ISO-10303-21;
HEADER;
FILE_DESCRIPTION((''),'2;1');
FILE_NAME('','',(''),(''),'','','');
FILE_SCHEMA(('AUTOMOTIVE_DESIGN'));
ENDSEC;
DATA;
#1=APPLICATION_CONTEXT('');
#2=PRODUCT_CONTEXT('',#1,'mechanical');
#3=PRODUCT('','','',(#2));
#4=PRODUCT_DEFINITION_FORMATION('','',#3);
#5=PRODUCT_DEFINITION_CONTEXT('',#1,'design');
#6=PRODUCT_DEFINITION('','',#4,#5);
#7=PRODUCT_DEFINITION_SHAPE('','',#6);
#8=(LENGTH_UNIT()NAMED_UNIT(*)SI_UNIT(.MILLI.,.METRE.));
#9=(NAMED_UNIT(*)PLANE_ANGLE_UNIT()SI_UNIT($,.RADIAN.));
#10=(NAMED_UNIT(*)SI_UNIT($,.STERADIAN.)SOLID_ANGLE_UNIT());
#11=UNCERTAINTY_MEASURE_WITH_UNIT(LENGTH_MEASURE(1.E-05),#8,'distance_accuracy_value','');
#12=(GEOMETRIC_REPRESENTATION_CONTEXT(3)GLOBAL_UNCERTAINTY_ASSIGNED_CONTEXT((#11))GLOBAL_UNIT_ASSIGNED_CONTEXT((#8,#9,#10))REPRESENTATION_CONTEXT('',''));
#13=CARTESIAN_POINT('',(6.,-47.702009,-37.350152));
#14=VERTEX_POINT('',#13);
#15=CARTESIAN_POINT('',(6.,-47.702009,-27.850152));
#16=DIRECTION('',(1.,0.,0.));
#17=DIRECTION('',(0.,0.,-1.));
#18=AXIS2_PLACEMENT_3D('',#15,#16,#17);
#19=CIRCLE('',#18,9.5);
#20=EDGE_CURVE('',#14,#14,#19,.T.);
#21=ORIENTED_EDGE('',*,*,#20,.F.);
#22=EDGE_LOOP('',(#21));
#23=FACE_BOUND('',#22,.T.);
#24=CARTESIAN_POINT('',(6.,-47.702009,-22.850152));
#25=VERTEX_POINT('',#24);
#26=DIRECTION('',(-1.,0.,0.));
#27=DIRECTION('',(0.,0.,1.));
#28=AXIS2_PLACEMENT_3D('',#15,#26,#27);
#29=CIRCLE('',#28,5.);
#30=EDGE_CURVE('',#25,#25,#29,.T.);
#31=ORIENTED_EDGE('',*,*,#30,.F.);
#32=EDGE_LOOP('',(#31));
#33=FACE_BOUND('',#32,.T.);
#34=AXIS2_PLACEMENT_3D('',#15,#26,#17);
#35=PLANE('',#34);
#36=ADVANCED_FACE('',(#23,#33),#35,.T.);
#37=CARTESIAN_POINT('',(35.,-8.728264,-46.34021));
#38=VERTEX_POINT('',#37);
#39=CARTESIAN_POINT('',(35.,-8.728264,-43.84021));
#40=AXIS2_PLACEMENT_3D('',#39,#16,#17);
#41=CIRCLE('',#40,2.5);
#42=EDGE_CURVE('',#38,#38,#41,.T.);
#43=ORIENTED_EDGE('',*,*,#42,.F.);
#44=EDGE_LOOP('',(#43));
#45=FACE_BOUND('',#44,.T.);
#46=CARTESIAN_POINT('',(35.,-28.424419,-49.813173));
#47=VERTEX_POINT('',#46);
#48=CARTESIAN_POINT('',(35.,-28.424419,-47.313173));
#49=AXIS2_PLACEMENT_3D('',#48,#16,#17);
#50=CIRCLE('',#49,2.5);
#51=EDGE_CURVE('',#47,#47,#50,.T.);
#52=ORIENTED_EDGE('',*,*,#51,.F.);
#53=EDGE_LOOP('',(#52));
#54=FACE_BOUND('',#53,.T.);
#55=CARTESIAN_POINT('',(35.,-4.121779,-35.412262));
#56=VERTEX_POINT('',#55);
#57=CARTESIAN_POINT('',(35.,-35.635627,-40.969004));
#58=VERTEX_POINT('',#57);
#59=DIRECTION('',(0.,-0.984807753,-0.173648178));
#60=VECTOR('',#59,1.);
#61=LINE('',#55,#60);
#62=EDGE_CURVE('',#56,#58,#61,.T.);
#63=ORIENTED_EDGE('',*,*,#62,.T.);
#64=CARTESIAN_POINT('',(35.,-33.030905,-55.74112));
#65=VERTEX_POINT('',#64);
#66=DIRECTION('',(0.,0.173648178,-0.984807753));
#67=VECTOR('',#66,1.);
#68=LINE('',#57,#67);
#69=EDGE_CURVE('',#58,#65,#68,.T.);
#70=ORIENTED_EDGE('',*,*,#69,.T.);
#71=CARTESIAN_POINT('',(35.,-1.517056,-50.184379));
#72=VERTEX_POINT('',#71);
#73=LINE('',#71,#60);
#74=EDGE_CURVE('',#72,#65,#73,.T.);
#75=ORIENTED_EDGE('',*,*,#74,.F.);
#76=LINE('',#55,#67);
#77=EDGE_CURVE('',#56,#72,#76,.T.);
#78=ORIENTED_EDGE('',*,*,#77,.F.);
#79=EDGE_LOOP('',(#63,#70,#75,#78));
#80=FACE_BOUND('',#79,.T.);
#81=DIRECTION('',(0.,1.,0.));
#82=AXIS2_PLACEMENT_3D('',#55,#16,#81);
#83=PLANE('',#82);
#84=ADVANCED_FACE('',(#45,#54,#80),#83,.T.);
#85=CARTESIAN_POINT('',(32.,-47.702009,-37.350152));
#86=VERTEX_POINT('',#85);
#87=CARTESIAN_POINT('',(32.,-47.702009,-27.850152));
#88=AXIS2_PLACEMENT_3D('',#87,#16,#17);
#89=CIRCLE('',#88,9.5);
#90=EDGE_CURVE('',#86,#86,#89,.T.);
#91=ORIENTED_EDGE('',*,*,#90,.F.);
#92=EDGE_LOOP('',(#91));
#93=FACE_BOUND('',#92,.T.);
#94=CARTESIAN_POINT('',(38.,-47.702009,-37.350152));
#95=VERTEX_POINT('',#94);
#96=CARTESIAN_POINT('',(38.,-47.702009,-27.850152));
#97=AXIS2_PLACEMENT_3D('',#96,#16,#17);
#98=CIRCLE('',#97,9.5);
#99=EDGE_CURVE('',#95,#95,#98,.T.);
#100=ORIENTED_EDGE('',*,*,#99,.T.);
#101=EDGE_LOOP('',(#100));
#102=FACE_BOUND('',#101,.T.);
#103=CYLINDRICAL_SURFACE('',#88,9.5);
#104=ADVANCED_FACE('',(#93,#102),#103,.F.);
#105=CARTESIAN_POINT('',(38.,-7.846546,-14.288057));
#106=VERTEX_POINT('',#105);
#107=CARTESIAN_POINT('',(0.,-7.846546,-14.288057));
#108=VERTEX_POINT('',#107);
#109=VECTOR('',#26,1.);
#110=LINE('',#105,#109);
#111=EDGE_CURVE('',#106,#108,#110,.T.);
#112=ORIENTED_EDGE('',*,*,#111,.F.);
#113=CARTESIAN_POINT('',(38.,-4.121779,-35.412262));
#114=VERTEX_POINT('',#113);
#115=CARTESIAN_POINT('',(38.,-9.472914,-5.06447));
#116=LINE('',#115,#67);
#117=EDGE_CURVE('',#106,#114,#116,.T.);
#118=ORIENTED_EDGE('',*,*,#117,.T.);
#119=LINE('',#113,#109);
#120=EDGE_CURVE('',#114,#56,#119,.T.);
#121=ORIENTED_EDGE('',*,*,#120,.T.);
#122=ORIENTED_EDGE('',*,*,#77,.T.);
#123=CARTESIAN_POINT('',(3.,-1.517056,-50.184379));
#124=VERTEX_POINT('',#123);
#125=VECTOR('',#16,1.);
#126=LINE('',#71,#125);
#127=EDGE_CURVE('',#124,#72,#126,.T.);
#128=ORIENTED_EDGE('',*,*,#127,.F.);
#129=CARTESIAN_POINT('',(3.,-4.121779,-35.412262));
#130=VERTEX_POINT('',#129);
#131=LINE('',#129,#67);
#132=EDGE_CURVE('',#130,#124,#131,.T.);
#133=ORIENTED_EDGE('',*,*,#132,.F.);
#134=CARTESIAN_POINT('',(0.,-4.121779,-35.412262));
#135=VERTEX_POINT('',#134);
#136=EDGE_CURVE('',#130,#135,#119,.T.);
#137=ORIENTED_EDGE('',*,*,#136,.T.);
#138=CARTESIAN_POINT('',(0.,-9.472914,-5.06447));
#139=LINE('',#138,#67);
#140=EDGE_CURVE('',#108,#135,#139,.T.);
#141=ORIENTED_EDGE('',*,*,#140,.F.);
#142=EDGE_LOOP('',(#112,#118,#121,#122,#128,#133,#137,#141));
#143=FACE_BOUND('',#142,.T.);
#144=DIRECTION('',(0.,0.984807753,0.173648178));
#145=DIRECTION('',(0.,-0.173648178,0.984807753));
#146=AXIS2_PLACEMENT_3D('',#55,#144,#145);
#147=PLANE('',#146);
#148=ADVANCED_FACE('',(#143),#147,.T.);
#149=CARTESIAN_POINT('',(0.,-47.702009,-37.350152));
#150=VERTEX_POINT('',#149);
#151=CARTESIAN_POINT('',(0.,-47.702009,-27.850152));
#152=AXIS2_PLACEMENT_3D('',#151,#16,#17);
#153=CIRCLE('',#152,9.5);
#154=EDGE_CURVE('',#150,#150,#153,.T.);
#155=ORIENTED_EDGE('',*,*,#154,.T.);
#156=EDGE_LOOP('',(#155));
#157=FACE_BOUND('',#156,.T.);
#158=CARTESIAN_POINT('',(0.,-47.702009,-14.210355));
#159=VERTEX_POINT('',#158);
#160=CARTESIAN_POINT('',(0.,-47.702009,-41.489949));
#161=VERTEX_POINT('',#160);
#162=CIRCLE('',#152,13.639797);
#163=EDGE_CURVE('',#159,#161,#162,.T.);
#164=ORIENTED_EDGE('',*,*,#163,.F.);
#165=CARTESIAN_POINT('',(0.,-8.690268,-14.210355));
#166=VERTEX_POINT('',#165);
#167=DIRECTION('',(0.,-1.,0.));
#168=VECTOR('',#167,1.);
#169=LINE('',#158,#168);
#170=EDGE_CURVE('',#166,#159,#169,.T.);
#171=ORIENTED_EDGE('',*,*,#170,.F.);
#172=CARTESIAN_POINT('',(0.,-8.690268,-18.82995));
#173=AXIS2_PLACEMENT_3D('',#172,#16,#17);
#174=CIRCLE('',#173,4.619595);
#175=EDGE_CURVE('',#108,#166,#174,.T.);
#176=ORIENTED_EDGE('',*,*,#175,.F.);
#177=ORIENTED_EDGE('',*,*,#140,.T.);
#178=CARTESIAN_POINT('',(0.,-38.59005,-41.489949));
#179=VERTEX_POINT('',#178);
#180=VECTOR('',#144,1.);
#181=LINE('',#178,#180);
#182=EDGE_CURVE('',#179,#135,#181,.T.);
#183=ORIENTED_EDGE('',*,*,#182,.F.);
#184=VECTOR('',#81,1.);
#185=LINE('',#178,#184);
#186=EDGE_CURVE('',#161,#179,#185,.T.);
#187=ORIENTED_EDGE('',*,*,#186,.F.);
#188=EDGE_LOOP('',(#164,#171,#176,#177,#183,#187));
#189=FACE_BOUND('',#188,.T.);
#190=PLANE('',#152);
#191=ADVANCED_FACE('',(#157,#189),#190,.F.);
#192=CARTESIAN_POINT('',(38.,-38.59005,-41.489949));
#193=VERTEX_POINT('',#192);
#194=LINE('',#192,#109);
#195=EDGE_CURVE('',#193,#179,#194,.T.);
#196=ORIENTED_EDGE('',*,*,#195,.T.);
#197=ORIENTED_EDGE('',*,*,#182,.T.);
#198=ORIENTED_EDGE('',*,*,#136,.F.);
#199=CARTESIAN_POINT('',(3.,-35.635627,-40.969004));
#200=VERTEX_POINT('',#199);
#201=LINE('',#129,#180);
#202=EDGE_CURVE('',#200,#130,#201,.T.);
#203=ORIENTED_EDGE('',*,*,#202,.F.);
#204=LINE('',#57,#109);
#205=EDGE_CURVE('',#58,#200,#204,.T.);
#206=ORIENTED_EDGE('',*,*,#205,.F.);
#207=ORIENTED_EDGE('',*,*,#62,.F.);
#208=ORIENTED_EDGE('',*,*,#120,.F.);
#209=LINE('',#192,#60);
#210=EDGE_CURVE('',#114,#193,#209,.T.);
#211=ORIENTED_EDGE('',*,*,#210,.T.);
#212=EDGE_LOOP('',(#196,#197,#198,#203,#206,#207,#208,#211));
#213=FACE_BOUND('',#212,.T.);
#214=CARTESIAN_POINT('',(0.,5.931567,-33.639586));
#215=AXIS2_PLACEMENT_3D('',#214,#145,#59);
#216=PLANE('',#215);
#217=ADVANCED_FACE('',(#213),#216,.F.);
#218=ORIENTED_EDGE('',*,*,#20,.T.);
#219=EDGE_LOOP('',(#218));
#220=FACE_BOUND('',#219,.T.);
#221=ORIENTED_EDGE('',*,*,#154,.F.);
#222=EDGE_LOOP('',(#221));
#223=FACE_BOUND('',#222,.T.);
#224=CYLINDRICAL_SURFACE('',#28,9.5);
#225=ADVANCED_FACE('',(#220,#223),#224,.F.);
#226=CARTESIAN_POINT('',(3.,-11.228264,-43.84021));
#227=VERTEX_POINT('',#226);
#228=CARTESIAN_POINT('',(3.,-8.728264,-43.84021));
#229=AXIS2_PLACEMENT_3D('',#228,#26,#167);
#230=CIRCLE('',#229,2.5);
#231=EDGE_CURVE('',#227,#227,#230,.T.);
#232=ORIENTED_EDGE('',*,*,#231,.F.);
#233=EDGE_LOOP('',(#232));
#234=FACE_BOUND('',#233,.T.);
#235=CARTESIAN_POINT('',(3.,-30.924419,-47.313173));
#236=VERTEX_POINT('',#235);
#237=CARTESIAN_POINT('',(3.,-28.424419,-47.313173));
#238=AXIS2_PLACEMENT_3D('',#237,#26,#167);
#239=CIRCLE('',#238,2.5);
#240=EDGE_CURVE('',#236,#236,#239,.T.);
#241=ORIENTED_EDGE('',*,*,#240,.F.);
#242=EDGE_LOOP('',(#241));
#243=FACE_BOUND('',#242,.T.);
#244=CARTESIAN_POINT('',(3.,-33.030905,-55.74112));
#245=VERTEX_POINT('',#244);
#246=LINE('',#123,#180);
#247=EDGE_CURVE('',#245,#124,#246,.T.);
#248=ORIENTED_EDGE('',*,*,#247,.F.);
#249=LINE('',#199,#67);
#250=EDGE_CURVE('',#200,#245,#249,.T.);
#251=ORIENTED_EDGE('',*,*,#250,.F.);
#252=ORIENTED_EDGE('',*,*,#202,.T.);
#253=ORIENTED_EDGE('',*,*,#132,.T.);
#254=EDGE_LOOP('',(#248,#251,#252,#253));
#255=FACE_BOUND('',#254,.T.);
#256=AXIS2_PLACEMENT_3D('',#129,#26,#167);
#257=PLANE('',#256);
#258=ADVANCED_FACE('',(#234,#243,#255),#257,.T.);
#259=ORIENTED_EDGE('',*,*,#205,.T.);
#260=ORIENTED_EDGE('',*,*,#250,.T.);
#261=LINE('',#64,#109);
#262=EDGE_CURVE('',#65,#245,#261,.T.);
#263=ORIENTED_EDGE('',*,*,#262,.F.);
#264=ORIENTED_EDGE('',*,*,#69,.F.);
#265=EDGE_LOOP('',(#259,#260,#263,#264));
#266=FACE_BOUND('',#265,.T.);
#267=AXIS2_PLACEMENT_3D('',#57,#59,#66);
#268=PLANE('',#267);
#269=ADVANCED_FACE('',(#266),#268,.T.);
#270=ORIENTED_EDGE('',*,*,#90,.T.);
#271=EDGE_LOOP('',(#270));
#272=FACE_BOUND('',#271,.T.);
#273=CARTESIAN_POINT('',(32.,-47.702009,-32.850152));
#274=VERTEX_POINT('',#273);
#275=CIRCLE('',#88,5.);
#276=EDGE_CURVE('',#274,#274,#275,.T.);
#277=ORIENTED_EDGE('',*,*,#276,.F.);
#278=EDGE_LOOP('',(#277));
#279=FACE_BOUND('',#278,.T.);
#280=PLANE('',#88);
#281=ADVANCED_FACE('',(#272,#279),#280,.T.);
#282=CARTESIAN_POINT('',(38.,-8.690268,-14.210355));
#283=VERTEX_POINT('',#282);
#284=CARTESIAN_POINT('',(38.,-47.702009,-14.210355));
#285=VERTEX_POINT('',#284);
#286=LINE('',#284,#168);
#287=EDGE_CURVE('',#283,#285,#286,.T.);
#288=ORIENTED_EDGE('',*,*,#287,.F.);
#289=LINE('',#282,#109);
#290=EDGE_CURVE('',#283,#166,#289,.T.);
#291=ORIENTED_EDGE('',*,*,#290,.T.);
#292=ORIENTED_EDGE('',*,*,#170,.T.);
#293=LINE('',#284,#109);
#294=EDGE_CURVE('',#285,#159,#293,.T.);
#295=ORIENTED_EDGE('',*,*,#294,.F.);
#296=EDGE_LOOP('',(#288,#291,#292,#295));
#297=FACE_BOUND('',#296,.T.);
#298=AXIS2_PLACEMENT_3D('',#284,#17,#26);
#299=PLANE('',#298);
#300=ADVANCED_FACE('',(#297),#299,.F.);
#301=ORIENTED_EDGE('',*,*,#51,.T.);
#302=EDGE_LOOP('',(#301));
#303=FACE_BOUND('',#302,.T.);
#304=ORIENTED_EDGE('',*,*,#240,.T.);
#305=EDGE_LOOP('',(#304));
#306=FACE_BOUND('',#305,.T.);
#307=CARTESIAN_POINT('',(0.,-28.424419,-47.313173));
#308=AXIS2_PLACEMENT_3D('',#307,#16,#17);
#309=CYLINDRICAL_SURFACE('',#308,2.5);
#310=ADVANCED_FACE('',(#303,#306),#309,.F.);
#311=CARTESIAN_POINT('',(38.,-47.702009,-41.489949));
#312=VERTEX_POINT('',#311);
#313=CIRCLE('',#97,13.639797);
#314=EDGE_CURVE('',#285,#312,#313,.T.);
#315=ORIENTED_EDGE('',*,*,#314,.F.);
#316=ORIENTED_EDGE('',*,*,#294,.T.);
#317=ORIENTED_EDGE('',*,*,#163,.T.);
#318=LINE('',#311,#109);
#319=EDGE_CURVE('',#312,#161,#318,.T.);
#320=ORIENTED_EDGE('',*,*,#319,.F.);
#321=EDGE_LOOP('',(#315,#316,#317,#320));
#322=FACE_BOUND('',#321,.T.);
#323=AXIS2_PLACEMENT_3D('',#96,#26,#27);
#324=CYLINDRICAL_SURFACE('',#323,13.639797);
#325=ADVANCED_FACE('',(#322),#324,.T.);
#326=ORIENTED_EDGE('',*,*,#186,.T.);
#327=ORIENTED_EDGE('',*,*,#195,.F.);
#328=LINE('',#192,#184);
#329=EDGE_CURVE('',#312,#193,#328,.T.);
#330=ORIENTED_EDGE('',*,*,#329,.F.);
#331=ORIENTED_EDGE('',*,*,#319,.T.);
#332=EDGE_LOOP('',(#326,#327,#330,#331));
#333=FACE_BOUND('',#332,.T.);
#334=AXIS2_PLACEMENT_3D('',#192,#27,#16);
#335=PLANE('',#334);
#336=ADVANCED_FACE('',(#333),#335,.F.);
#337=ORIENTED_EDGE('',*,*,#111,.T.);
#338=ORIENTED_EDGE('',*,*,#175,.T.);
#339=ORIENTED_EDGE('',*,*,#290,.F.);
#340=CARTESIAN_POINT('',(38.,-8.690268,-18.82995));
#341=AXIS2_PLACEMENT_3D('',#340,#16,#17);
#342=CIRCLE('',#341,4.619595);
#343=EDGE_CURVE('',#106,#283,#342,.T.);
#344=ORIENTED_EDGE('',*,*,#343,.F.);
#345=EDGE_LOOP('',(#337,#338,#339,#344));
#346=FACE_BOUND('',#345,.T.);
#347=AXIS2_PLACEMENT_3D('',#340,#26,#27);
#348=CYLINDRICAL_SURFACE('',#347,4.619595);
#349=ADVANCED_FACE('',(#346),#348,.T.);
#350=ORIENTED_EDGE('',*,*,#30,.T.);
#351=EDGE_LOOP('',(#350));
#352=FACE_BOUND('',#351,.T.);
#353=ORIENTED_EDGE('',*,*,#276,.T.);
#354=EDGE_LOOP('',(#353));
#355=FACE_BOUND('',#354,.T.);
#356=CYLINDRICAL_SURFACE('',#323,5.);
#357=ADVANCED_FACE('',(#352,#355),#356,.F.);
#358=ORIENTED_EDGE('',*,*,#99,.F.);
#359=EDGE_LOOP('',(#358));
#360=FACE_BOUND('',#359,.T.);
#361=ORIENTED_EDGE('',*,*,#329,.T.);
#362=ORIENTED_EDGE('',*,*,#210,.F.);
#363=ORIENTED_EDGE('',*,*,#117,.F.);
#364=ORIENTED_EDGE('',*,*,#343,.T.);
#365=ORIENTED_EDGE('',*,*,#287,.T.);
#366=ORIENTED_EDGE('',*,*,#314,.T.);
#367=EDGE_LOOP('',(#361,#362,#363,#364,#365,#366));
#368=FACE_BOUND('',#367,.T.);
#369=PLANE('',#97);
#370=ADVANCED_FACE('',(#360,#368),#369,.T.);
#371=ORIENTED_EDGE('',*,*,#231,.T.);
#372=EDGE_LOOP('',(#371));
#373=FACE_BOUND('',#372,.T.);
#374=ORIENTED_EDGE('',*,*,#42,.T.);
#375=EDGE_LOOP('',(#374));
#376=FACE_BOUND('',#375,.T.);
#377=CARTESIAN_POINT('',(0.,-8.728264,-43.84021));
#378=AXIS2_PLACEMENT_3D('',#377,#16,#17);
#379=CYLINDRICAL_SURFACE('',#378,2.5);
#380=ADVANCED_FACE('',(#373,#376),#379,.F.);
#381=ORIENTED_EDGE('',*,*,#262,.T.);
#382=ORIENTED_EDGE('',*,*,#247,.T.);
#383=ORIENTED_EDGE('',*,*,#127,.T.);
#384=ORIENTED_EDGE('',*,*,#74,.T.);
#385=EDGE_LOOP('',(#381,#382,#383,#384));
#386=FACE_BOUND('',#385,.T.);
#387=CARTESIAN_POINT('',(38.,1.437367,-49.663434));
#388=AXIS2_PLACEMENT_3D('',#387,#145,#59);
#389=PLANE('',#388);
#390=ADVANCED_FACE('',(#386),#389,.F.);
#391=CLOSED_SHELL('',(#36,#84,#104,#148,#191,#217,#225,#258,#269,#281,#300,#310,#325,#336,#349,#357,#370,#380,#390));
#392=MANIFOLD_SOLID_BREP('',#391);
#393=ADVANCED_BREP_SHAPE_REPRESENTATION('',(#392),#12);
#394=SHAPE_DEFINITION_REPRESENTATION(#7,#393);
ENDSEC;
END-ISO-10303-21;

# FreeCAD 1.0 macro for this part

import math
import FreeCAD as App
import Part
import Sketcher
from FreeCAD import Vector
Q = App.Units.Quantity

doc = App.newDocument("Part")
body = doc.addObject("PartDesign::Body", "Body")

sketch1 = body.newObject("Sketcher::SketchObject", "Sketch")
sketch1.AttachmentSupport = (doc.getObject("YZ_Plane"), [""])
sketch1.MapMode = "FlatFace"
sketch1.addGeometry([
    Part.LineSegment(Vector(1.4, -49.7, 0), Vector(-4.1, -18, 0)),
    Part.ArcOfCircle(Part.Circle(Vector(-8.7, -18.8, 0), Vector(0, 0, 1), 4.6), math.radians(10), math.radians(90)),
    Part.LineSegment(Vector(-8.7, -14.2, 0), Vector(-47.7, -14.2, 0)),
    Part.ArcOfCircle(Part.Circle(Vector(-47.7, -27.9, 0), Vector(0, 0, 1), 13.6), math.radians(90), math.radians(270)),
    Part.LineSegment(Vector(-47.7, -41.5, 0), Vector(-38.6, -41.5, 0)),
    Part.LineSegment(Vector(-38.6, -41.5, 0), Vector(-36, -56.3, 0)),
    Part.LineSegment(Vector(-36, -56.3, 0), Vector(1.4, -49.7, 0)),
    Part.Circle(Vector(-47.7, -27.9, 0), Vector(0, 0, 1), 5),
], False)
sketch1.addConstraint([
    Sketcher.Constraint("Tangent", 0, 2, 1, 1),
    Sketcher.Constraint("Tangent", 1, 2, 2, 1),
    Sketcher.Constraint("Tangent", 2, 2, 3, 1),
    Sketcher.Constraint("Tangent", 3, 2, 4, 1),
    Sketcher.Constraint("Coincident", 4, 2, 5, 1),
    Sketcher.Constraint("Coincident", 5, 2, 6, 1),
    Sketcher.Constraint("Coincident", 6, 2, 0, 1),
    Sketcher.Constraint("Horizontal", 2),
    Sketcher.Constraint("Horizontal", 4),
    Sketcher.Constraint("Coincident", 7, 3, 3, 3),
    Sketcher.Constraint("Parallel", 0, 5),
    Sketcher.Constraint("Perpendicular", 5, 6),
    Sketcher.Constraint("Diameter", 7, Q("10 mm")),
    Sketcher.Constraint("Angle", 0, Q("100 deg")),
    Sketcher.Constraint("Distance", 5, Q("15 mm")),
    Sketcher.Constraint("Distance", 6, Q("38 mm")),
    Sketcher.Constraint("DistanceY", 3, 2, 1, 3, Q("22.659999 mm")),
    Sketcher.Constraint("Radius", 1, Q("4.619595 mm")),
    Sketcher.Constraint("DistanceX", 2, 2, 2, 1, Q("39.011741 mm")),
    Sketcher.Constraint("DistanceY", 1, 3, -1, 1, Q("18.82995 mm")),
    Sketcher.Constraint("DistanceX", 3, 3, -1, 1, Q("47.702009 mm")),
])
pad1 = body.newObject("PartDesign::Pad", "Pad")
pad1.Profile = sketch1
pad1.Length = 38

sketch2 = body.newObject("Sketcher::SketchObject", "Sketch001")
sketch2.AttachmentSupport = (doc.getObject("YZ_Plane"), [""])
sketch2.MapMode = "FlatFace"
sketch2.AttachmentOffset = App.Placement(Vector(0, 0, 38), App.Rotation())
sketch2.addGeometry(Part.Circle(Vector(-48, -28, 0), Vector(0, 0, 1), 10), False)
sketch2.addConstraint([
    Sketcher.Constraint("Diameter", 0, Q("19 mm")),
    Sketcher.Constraint("DistanceX", 0, 3, -1, 1, Q("47.702009 mm")),
    Sketcher.Constraint("DistanceY", 0, 3, -1, 1, Q("27.850152 mm")),
])
pocket1 = body.newObject("PartDesign::Pocket", "Pocket")
pocket1.Profile = sketch2
pocket1.Length = 6
doc.recompute()

datumplane = body.newObject("PartDesign::Plane", "DatumPlane")
datumplane.AttachmentSupport = (doc.getObject("YZ_Plane"), [""])
datumplane.MapMode = "FlatFace"
datumplane.AttachmentOffset = App.Placement(Vector(0, 0, 19), App.Rotation())
mirrored = body.newObject("PartDesign::Mirrored", "Mirrored")
mirrored.Originals = [pocket1]
mirrored.MirrorPlane = (datumplane, [""])
body.Tip = mirrored

sketch3 = body.newObject("Sketcher::SketchObject", "Sketch002")
sketch3.Placement = App.Placement(Vector(0, 8.536289, -48.411703), App.Rotation(Vector(-1, 0, 0), Vector(0, 0.984807753, 0.173648178), Vector(0, 0.173648178, -0.984807753), "ZXY"))
sketch3.addGeometry([
    Part.LineSegment(Vector(-38, -7, 0), Vector(-38, -45, 0)),
    Part.LineSegment(Vector(-38, -45, 0), Vector(0, -45, 0)),
    Part.LineSegment(Vector(0, -45, 0), Vector(0, -7, 0)),
    Part.LineSegment(Vector(0, -7, 0), Vector(-38, -7, 0)),
    Part.LineSegment(Vector(-3, -42, 0), Vector(-35, -42, 0)),
    Part.LineSegment(Vector(-35, -42, 0), Vector(-35, -10, 0)),
    Part.LineSegment(Vector(-35, -10, 0), Vector(-3, -10, 0)),
    Part.LineSegment(Vector(-3, -10, 0), Vector(-3, -42, 0)),
], False)
sketch3.addConstraint([
    Sketcher.Constraint("Coincident", 0, 2, 1, 1),
    Sketcher.Constraint("Coincident", 1, 2, 2, 1),
    Sketcher.Constraint("Coincident", 2, 2, 3, 1),
    Sketcher.Constraint("Coincident", 3, 2, 0, 1),
    Sketcher.Constraint("Coincident", 4, 2, 5, 1),
    Sketcher.Constraint("Coincident", 5, 2, 6, 1),
    Sketcher.Constraint("Coincident", 6, 2, 7, 1),
    Sketcher.Constraint("Coincident", 7, 2, 4, 1),
    Sketcher.Constraint("Vertical", 0),
    Sketcher.Constraint("Horizontal", 1),
    Sketcher.Constraint("Vertical", 2),
    Sketcher.Constraint("Horizontal", 3),
    Sketcher.Constraint("Horizontal", 4),
    Sketcher.Constraint("Vertical", 5),
    Sketcher.Constraint("Horizontal", 6),
    Sketcher.Constraint("Vertical", 7),
    Sketcher.Constraint("PointOnObject", 1, 2, -2),
    Sketcher.Constraint("Equal", 3, 0),
    Sketcher.Constraint("Equal", 6, 5),
    Sketcher.Constraint("DistanceX", 1, 1, 1, 2, Q("38 mm")),
    Sketcher.Constraint("DistanceX", 4, 2, 4, 1, Q("32 mm")),
    Sketcher.Constraint("DistanceX", 4, 2, -1, 1, Q("35 mm")),
    Sketcher.Constraint("DistanceY", 0, 2, 4, 2, Q("3 mm")),
    Sketcher.Constraint("DistanceY", 0, 2, -1, 1, Q("45.208435 mm")),
])
pocket2 = body.newObject("PartDesign::Pocket", "Pocket001")
pocket2.Profile = sketch3
pocket2.Length = 15

sketch4 = body.newObject("Sketcher::SketchObject", "Sketch003")
sketch4.Placement = App.Placement(Vector(0, 5.931567, -33.639586), App.Rotation(Vector(-1, 0, 0), Vector(0, 0.984807753, 0.173648178), Vector(0, 0.173648178, -0.984807753), "ZXY"))
sketch4.addGeometry([
    Part.LineSegment(Vector(-38, -7.2, 0), Vector(-38, -10.2, 0)),
    Part.LineSegment(Vector(-38, -10.2, 0), Vector(0, -10.2, 0)),
    Part.LineSegment(Vector(0, -10.2, 0), Vector(0, -7.2, 0)),
    Part.LineSegment(Vector(0, -7.2, 0), Vector(-38, -7.2, 0)),
], False)
sketch4.addConstraint([
    Sketcher.Constraint("Coincident", 0, 2, 1, 1),
    Sketcher.Constraint("Coincident", 1, 2, 2, 1),
    Sketcher.Constraint("Coincident", 2, 2, 3, 1),
    Sketcher.Constraint("Coincident", 3, 2, 0, 1),
    Sketcher.Constraint("Vertical", 0),
    Sketcher.Constraint("Horizontal", 1),
    Sketcher.Constraint("Vertical", 2),
    Sketcher.Constraint("Horizontal", 3),
    Sketcher.Constraint("PointOnObject", 1, 2, -2),
    Sketcher.Constraint("DistanceX", 1, 1, 1, 2, Q("38 mm")),
    Sketcher.Constraint("DistanceY", 0, 2, 0, 1, Q("3 mm")),
    Sketcher.Constraint("DistanceY", 0, 2, -1, 1, Q("10.208435 mm")),
])
pocket3 = body.newObject("PartDesign::Pocket", "Pocket002")
pocket3.Profile = sketch4
pocket3.Type = "ThroughAll"

sketch5 = body.newObject("Sketcher::SketchObject", "Sketch004")
sketch5.AttachmentSupport = (doc.getObject("YZ_Plane"), [""])
sketch5.MapMode = "FlatFace"
sketch5.AttachmentOffset = App.Placement(Vector(0, 0, 35), App.Rotation())
sketch5.addGeometry([
    Part.Circle(Vector(-8.7, -43.8, 0), Vector(0, 0, 1), 2.5),
    Part.Circle(Vector(-28.4, -47.3, 0), Vector(0, 0, 1), 2.5),
], False)
sketch5.addConstraint([
    Sketcher.Constraint("Equal", 0, 1),
    Sketcher.Constraint("Diameter", 0, Q("5 mm")),
    Sketcher.Constraint("DistanceY", 0, 3, -1, 1, Q("43.84021 mm")),
    Sketcher.Constraint("DistanceX", 1, 3, -1, 1, Q("28.424419 mm")),
    Sketcher.Constraint("DistanceX", 0, 3, -1, 1, Q("8.728264 mm")),
    Sketcher.Constraint("DistanceY", 1, 3, -1, 1, Q("47.313173 mm")),
])
pocket4 = body.newObject("PartDesign::Pocket", "Pocket003")
pocket4.Profile = sketch5
pocket4.Type = "ThroughAll"

doc.recompute()
